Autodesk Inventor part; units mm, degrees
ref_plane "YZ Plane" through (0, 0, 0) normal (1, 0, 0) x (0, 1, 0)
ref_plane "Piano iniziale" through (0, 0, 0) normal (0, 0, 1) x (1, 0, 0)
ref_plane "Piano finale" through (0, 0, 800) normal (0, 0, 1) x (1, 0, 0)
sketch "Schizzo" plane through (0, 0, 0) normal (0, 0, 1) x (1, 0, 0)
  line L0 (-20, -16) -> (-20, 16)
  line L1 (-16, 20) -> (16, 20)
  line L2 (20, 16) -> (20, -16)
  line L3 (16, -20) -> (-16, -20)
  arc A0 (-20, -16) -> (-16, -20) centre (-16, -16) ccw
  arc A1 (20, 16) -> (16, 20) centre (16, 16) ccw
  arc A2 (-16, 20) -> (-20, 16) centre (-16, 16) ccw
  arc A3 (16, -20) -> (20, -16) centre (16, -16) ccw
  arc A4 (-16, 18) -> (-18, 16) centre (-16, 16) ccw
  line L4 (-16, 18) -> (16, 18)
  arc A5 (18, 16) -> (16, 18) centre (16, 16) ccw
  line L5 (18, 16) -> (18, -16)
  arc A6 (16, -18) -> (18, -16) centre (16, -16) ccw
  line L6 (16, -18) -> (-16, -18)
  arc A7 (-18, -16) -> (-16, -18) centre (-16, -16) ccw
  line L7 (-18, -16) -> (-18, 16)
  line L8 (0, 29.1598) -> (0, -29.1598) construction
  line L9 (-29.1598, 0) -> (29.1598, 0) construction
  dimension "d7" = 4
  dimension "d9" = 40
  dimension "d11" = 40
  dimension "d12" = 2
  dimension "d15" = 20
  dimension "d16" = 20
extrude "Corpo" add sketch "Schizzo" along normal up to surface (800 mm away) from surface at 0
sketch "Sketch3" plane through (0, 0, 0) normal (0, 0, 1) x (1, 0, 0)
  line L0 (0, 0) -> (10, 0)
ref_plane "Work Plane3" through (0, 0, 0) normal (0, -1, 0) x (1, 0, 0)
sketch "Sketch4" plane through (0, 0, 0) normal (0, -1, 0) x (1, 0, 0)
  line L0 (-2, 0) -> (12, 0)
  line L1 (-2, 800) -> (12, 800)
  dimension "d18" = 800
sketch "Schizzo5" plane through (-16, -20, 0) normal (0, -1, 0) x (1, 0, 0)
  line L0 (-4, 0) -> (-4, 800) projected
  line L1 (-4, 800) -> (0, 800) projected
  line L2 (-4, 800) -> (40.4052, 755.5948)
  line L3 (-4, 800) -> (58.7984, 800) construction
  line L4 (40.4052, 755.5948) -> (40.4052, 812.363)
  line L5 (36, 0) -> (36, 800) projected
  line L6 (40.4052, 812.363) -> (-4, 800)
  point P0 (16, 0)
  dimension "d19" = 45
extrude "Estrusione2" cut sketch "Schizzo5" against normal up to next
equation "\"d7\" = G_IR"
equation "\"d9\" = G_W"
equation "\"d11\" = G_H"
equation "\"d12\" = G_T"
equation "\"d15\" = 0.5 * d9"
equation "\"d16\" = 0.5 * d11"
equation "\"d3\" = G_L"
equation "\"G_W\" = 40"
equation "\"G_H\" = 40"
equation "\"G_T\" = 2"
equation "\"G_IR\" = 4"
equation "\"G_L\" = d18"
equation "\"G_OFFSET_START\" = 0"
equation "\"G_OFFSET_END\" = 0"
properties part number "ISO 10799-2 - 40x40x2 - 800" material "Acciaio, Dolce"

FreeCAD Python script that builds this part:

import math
import FreeCAD as App
import Part
import Sketcher
Q = App.Units.Quantity

doc = App.newDocument("Part")
body = doc.addObject("PartDesign::Body", "Body")

sketch1 = body.newObject("Sketcher::SketchObject", "Sketch")
sketch1.AttachmentSupport = (doc.getObject("XY_Plane"), [""])
sketch1.MapMode = "FlatFace"
sketch1.addGeometry(Part.LineSegment(App.Vector(-20, 16, 0), App.Vector(-20, -16, 0)), False)
sketch1.addGeometry(Part.ArcOfCircle(Part.Circle(App.Vector(-16, -16, 0), App.Vector(0, 0, 1), 4), math.radians(180), math.radians(270)), False)
sketch1.addGeometry(Part.LineSegment(App.Vector(-16, -20, 0), App.Vector(16, -20, 0)), False)
sketch1.addGeometry(Part.ArcOfCircle(Part.Circle(App.Vector(16, -16, 0), App.Vector(0, 0, 1), 4), math.radians(-90), math.radians(0)), False)
sketch1.addGeometry(Part.LineSegment(App.Vector(20, -16, 0), App.Vector(20, 16, 0)), False)
sketch1.addGeometry(Part.ArcOfCircle(Part.Circle(App.Vector(16, 16, 0), App.Vector(0, 0, 1), 4), math.radians(0), math.radians(90)), False)
sketch1.addGeometry(Part.LineSegment(App.Vector(16, 20, 0), App.Vector(-16, 20, 0)), False)
sketch1.addGeometry(Part.ArcOfCircle(Part.Circle(App.Vector(-16, 16, 0), App.Vector(0, 0, 1), 4), math.radians(90), math.radians(180)), False)
sketch1.addGeometry(Part.ArcOfCircle(Part.Circle(App.Vector(-16, 16, 0), App.Vector(0, 0, 1), 2), math.radians(90), math.radians(180)), False)
sketch1.addGeometry(Part.LineSegment(App.Vector(-16, 18, 0), App.Vector(16, 18, 0)), False)
sketch1.addGeometry(Part.ArcOfCircle(Part.Circle(App.Vector(16, 16, 0), App.Vector(0, 0, 1), 2), math.radians(0), math.radians(90)), False)
sketch1.addGeometry(Part.LineSegment(App.Vector(18, 16, 0), App.Vector(18, -16, 0)), False)
sketch1.addGeometry(Part.ArcOfCircle(Part.Circle(App.Vector(16, -16, 0), App.Vector(0, 0, 1), 2), math.radians(-90), math.radians(0)), False)
sketch1.addGeometry(Part.LineSegment(App.Vector(16, -18, 0), App.Vector(-16, -18, 0)), False)
sketch1.addGeometry(Part.ArcOfCircle(Part.Circle(App.Vector(-16, -16, 0), App.Vector(0, 0, 1), 2), math.radians(180), math.radians(270)), False)
sketch1.addGeometry(Part.LineSegment(App.Vector(-18, -16, 0), App.Vector(-18, 16, 0)), False)
sketch1.addConstraint(Sketcher.Constraint("Tangent", 0, 2, 1, 1))
sketch1.addConstraint(Sketcher.Constraint("Tangent", 1, 2, 2, 1))
sketch1.addConstraint(Sketcher.Constraint("Tangent", 2, 2, 3, 1))
sketch1.addConstraint(Sketcher.Constraint("Tangent", 3, 2, 4, 1))
sketch1.addConstraint(Sketcher.Constraint("Tangent", 4, 2, 5, 1))
sketch1.addConstraint(Sketcher.Constraint("Tangent", 5, 2, 6, 1))
sketch1.addConstraint(Sketcher.Constraint("Tangent", 6, 2, 7, 1))
sketch1.addConstraint(Sketcher.Constraint("Tangent", 7, 2, 0, 1))
sketch1.addConstraint(Sketcher.Constraint("Tangent", 8, 1, 9, 1))
sketch1.addConstraint(Sketcher.Constraint("Tangent", 9, 2, 10, 2))
sketch1.addConstraint(Sketcher.Constraint("Tangent", 10, 1, 11, 1))
sketch1.addConstraint(Sketcher.Constraint("Tangent", 11, 2, 12, 2))
sketch1.addConstraint(Sketcher.Constraint("Tangent", 12, 1, 13, 1))
sketch1.addConstraint(Sketcher.Constraint("Tangent", 13, 2, 14, 2))
sketch1.addConstraint(Sketcher.Constraint("Tangent", 14, 1, 15, 1))
sketch1.addConstraint(Sketcher.Constraint("Tangent", 15, 2, 8, 2))
sketch1.addConstraint(Sketcher.Constraint("Vertical", 0))
sketch1.addConstraint(Sketcher.Constraint("Horizontal", 2))
sketch1.addConstraint(Sketcher.Constraint("Vertical", 4))
sketch1.addConstraint(Sketcher.Constraint("Horizontal", 6))
sketch1.addConstraint(Sketcher.Constraint("Horizontal", 9))
sketch1.addConstraint(Sketcher.Constraint("Vertical", 11))
sketch1.addConstraint(Sketcher.Constraint("Horizontal", 13))
sketch1.addConstraint(Sketcher.Constraint("Vertical", 15))
sketch1.addConstraint(Sketcher.Constraint("Coincident", 8, 3, 7, 3))
sketch1.addConstraint(Sketcher.Constraint("Coincident", 10, 3, 5, 3))
sketch1.addConstraint(Sketcher.Constraint("Coincident", 12, 3, 3, 3))
sketch1.addConstraint(Sketcher.Constraint("Equal", 1, 3))
sketch1.addConstraint(Sketcher.Constraint("Equal", 3, 5))
sketch1.addConstraint(Sketcher.Constraint("Equal", 5, 7))
sketch1.addConstraint(Sketcher.Constraint("Equal", 12, 14))
sketch1.addConstraint(Sketcher.Constraint("Symmetric", 1, 3, 5, 3, -1, 1))
sketch1.addConstraint(Sketcher.Constraint("Equal", 13, 0))
sketch1.addConstraint(Sketcher.Constraint("Radius", 1, Q("4 mm")))
sketch1.addConstraint(Sketcher.Constraint("Radius", 8, Q("2 mm")))
sketch1.addConstraint(Sketcher.Constraint("DistanceX", 0, 2, -1, 1, Q("20 mm")))
pad1 = body.newObject("PartDesign::Pad", "Pad")
pad1.Profile = sketch1
pad1.Length = 800

sketch2 = body.newObject("Sketcher::SketchObject", "Sketch001")
sketch2.AttachmentSupport = (doc.getObject("XZ_Plane"), [""])
sketch2.MapMode = "FlatFace"
sketch2.AttachmentOffset = App.Placement(App.Vector(0, 0, 20), App.Rotation())
sketch2.addGeometry(Part.LineSegment(App.Vector(24.4052, 812.363, 0), App.Vector(-20, 800, 0)), False)
sketch2.addGeometry(Part.LineSegment(App.Vector(-20, 800, 0), App.Vector(24.4052, 755.5948, 0)), False)
sketch2.addGeometry(Part.LineSegment(App.Vector(24.4052, 755.5948, 0), App.Vector(24.4052, 812.363, 0)), False)
sketch2.addConstraint(Sketcher.Constraint("Coincident", 0, 2, 1, 1))
sketch2.addConstraint(Sketcher.Constraint("Coincident", 1, 2, 2, 1))
sketch2.addConstraint(Sketcher.Constraint("Coincident", 2, 2, 0, 1))
sketch2.addConstraint(Sketcher.Constraint("Vertical", 2))
sketch2.addConstraint(Sketcher.Constraint("Angle", 1, Q("-45 deg")))
sketch2.addConstraint(Sketcher.Constraint("DistanceX", 0, 2, -1, 1, Q("20 mm")))
sketch2.addConstraint(Sketcher.Constraint("DistanceY", -1, 1, 0, 2, Q("800 mm")))
sketch2.addConstraint(Sketcher.Constraint("Distance", 0, Q("46.094 mm")))
sketch2.addConstraint(Sketcher.Constraint("DistanceY", 2, 1, 2, 2, Q("56.7682 mm")))
pocket1 = body.newObject("PartDesign::Pocket", "Pocket")
pocket1.Profile = sketch2
pocket1.Length = 40

doc.recompute()
